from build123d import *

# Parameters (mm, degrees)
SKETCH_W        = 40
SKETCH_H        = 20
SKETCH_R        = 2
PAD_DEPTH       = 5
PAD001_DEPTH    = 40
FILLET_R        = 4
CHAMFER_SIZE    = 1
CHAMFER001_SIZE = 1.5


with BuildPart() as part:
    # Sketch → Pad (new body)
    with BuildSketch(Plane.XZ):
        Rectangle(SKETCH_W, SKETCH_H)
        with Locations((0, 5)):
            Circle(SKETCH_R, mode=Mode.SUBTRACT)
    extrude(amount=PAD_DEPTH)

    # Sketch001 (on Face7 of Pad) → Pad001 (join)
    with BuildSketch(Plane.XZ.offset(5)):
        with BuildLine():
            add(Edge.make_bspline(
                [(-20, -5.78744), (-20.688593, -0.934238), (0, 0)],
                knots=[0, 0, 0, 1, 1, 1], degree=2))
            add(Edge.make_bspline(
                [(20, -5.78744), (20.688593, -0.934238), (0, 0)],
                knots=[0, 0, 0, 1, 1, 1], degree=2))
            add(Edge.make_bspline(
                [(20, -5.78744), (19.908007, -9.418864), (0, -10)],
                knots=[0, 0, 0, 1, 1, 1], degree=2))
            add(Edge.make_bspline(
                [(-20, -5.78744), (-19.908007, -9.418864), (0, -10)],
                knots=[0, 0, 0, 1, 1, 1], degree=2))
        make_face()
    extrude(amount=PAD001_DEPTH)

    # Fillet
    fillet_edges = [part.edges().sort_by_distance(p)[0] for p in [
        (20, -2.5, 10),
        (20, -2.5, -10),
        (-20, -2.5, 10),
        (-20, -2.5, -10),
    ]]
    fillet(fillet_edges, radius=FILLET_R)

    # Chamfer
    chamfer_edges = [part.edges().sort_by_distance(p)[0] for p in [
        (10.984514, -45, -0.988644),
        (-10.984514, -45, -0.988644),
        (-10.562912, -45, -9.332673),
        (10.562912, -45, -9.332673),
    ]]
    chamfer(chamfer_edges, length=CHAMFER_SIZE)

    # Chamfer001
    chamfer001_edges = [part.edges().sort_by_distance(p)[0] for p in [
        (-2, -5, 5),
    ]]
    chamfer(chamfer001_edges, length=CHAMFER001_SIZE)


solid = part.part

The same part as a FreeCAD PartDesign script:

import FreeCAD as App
import Part
import Sketcher
from FreeCAD import Vector


def edges_at(feature, points):
    """Names of the edges that pass closest to the given points."""
    edges = feature.Shape.Edges
    near = lambda p: min(range(len(edges)), key=lambda i: edges[i].distToShape(Part.Vertex(*p))[0])
    return sorted({f"Edge{near(p) + 1}" for p in points})


def add_polygon(sketch, points):
    """Adds a closed chain of lines whose ends are joined by coincident constraints."""
    first, n = sketch.GeometryCount, len(points)
    for a, b in zip(points, points[1:] + points[:1]):
        sketch.addGeometry(Part.LineSegment(App.Vector(*a, 0), App.Vector(*b, 0)), False)
    for i in range(n):
        sketch.addConstraint(Sketcher.Constraint("Coincident", first + i, 2, first + (i + 1) % n, 1))

doc = App.newDocument("Part")
body = doc.addObject("PartDesign::Body", "Body")

# Sketch on XZ plane
sketch1 = body.newObject("Sketcher::SketchObject", "Sketch")
sketch1.AttachmentSupport = (doc.getObject("XZ_Plane"), [""])
sketch1.MapMode = "FlatFace"
add_polygon(sketch1, [(-20, 10), (-20, -10), (20, -10), (20, 10)])  # lines 0-3
sketch1.addGeometry(Part.Circle(Vector(0, 5, 0), Vector(0, 0, 1), 2), False)  # 4
sketch1.addConstraint(Sketcher.Constraint("Vertical", 0))
sketch1.addConstraint(Sketcher.Constraint("Horizontal", 1))
sketch1.addConstraint(Sketcher.Constraint("Vertical", 2))
sketch1.addConstraint(Sketcher.Constraint("Horizontal", 3))
sketch1.addConstraint(Sketcher.Constraint("Symmetric", 0, 2, 2, 2, -1, 1))
sketch1.addConstraint(Sketcher.Constraint("PointOnObject", 4, 3, -2))
sketch1.addConstraint(Sketcher.Constraint("Diameter", 4, 4.0))
sketch1.addConstraint(Sketcher.Constraint("DistanceX", 1, 1, 1, 2, 40.0))
sketch1.addConstraint(Sketcher.Constraint("DistanceY", 0, 2, 0, 1, 20.0))
sketch1.addConstraint(Sketcher.Constraint("DistanceY", -1, 1, 4, 3, 5.0))
pad1 = body.newObject("PartDesign::Pad", "Pad")
pad1.Profile = sketch1
pad1.Length = 5

# Sketch on XZ plane
sketch2 = body.newObject("Sketcher::SketchObject", "Sketch001")
sketch2.AttachmentSupport = (doc.getObject("XZ_Plane"), [""])
sketch2.MapMode = "FlatFace"
sketch2.AttachmentOffset = App.Placement(Vector(0, 0, 5), App.Rotation())
sketch2.addGeometry(Part.BSplineCurve([Vector(-20, -5.78744, 0), Vector(-20.688593, -0.934238, 0), Vector(0, 0, 0)], [3, 3], [0, 1], False, 2, [1, 1, 1], False), False)
sketch2.addGeometry(Part.BSplineCurve([Vector(-20, -5.78744, 0), Vector(-19.908007, -9.418864, 0), Vector(0, -10, 0)], [3, 3], [0, 1], False, 2, [1, 1, 1], False), False)
sketch2.addGeometry(Part.BSplineCurve([Vector(20, -5.78744, 0), Vector(19.908007, -9.418864, 0), Vector(0, -10, 0)], [3, 3], [0, 1], False, 2, [1, 1, 1], False), False)
sketch2.addGeometry(Part.BSplineCurve([Vector(20, -5.78744, 0), Vector(20.688593, -0.934238, 0), Vector(0, 0, 0)], [3, 3], [0, 1], False, 2, [1, 1, 1], False), False)
sketch2.addConstraint(Sketcher.Constraint("Block", 0))
sketch2.addConstraint(Sketcher.Constraint("Block", 1))
sketch2.addConstraint(Sketcher.Constraint("Block", 2))
sketch2.addConstraint(Sketcher.Constraint("Block", 3))
pad2 = body.newObject("PartDesign::Pad", "Pad001")
pad2.Profile = sketch2
pad2.Length = 40
doc.recompute()

fillet = body.newObject("PartDesign::Fillet", "Fillet")
fillet.Base = (pad2, edges_at(pad2, [
    (20, -2.5, 10),
    (20, -2.5, -10),
    (-20, -2.5, 10),
    (-20, -2.5, -10),
]))
fillet.Radius = 4
doc.recompute()

chamfer = body.newObject("PartDesign::Chamfer", "Chamfer")
chamfer.Base = (fillet, edges_at(fillet, [
    (10.985, -45, -0.989),
    (-10.985, -45, -0.989),
    (-10.563, -45, -9.333),
    (10.563, -45, -9.333),
]))
chamfer.Size = 1
doc.recompute()

chamfer2 = body.newObject("PartDesign::Chamfer", "Chamfer001")
chamfer2.Base = (chamfer, edges_at(chamfer, [(-2, -5, 5)]))
chamfer2.Size = 1.5

doc.recompute()
